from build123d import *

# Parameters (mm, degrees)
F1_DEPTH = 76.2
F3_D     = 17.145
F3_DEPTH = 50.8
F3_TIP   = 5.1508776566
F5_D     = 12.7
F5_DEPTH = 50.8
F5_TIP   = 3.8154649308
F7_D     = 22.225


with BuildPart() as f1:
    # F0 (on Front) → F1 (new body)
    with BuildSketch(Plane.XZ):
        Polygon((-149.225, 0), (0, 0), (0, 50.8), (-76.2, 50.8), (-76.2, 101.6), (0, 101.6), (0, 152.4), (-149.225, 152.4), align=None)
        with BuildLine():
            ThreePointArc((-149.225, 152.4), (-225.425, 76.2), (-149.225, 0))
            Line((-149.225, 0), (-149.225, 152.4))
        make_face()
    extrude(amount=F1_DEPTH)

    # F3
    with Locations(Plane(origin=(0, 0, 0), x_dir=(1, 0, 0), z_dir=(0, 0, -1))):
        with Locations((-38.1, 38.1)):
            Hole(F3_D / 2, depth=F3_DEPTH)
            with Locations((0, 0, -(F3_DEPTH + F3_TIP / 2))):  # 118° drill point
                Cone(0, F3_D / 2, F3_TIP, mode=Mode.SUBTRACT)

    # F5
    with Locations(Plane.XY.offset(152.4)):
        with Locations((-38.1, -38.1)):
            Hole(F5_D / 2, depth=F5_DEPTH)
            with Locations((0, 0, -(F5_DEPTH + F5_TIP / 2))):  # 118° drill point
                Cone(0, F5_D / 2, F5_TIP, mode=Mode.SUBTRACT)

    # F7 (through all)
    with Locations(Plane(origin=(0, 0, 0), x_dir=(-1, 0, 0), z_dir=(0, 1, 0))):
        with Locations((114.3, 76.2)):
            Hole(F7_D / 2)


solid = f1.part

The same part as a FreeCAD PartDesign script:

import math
import FreeCAD as App
import Part
import Sketcher
from FreeCAD import Vector
Q = App.Units.Quantity

doc = App.newDocument("Part")
body = doc.addObject("PartDesign::Body", "Body")

# Sketch on XZ plane
sketch1 = doc.addObject("Sketcher::SketchObject", "Sketch")
body.addObject(sketch1)
sketch1.AttachmentSupport = (doc.XZ_Plane, [""])
sketch1.MapMode = "FlatFace"
sketch1.addGeometry(Part.LineSegment(Vector(-149, 0, 0), Vector(0, 0, 0)), False)
sketch1.addGeometry(Part.LineSegment(Vector(0, 0, 0), Vector(0, 51, 0)), False)
sketch1.addGeometry(Part.LineSegment(Vector(0, 51, 0), Vector(-76, 51, 0)), False)
sketch1.addGeometry(Part.LineSegment(Vector(-76, 51, 0), Vector(-76, 102, 0)), False)
sketch1.addGeometry(Part.LineSegment(Vector(-76, 102, 0), Vector(0, 102, 0)), False)
sketch1.addGeometry(Part.LineSegment(Vector(0, 102, 0), Vector(0, 152, 0)), False)
sketch1.addGeometry(Part.LineSegment(Vector(0, 152, 0), Vector(-149, 152, 0)), False)
sketch1.addGeometry(Part.ArcOfCircle(Part.Circle(Vector(-149, 76, 0), Vector(0, 0, 1), 76), math.radians(90), math.radians(270)), False)
sketch1.addConstraint(Sketcher.Constraint("Coincident", 0, 2, 1, 1))
sketch1.addConstraint(Sketcher.Constraint("Coincident", 1, 2, 2, 1))
sketch1.addConstraint(Sketcher.Constraint("Coincident", 2, 2, 3, 1))
sketch1.addConstraint(Sketcher.Constraint("Coincident", 3, 2, 4, 1))
sketch1.addConstraint(Sketcher.Constraint("Coincident", 4, 2, 5, 1))
sketch1.addConstraint(Sketcher.Constraint("Coincident", 5, 2, 6, 1))
sketch1.addConstraint(Sketcher.Constraint("Tangent", 6, 2, 7, 1))
sketch1.addConstraint(Sketcher.Constraint("Tangent", 7, 2, 0, 1))
sketch1.addConstraint(Sketcher.Constraint("Horizontal", 0))
sketch1.addConstraint(Sketcher.Constraint("Vertical", 1))
sketch1.addConstraint(Sketcher.Constraint("Horizontal", 2))
sketch1.addConstraint(Sketcher.Constraint("Vertical", 3))
sketch1.addConstraint(Sketcher.Constraint("Horizontal", 4))
sketch1.addConstraint(Sketcher.Constraint("Vertical", 5))
sketch1.addConstraint(Sketcher.Constraint("Horizontal", 6))
sketch1.addConstraint(Sketcher.Constraint("Coincident", 0, 2, -1, 1))
sketch1.addConstraint(Sketcher.Constraint("PointOnObject", 4, 2, -2))
sketch1.addConstraint(Sketcher.Constraint("Equal", 1, 3))
sketch1.addConstraint(Sketcher.Constraint("Equal", 3, 5))
sketch1.addConstraint(Sketcher.Constraint("Radius", 7, Q("3 in")))
sketch1.addConstraint(Sketcher.Constraint("DistanceX", 2, 2, 2, 1, Q("3 in")))
sketch1.addConstraint(Sketcher.Constraint("DistanceX", 0, 1, 0, 2, Q("5.875 in")))
pad1 = doc.addObject("PartDesign::Pad", "Pad")
body.addObject(pad1)
pad1.Profile = sketch1
pad1.Length = Q("3 in")

# Sketch on XY plane
sketch2 = doc.addObject("Sketcher::SketchObject", "Sketch001")
body.addObject(sketch2)
sketch2.AttachmentSupport = (doc.XY_Plane, [""])
sketch2.MapMode = "FlatFace"
sketch2.addGeometry(Part.Circle(Vector(-38, -38, 0), Vector(0, 0, 1), 9), False)
sketch2.addConstraint(Sketcher.Constraint("Diameter", 0, Q("0.675 in")))
sketch2.addConstraint(Sketcher.Constraint("DistanceX", 0, 3, -1, 1, Q("1.5 in")))
sketch2.addConstraint(Sketcher.Constraint("DistanceY", 0, 3, -1, 1, Q("1.5 in")))
doc.recompute()
hole = doc.addObject("PartDesign::Hole", "Hole")
body.addObject(hole)
hole.Profile = sketch2
hole.ThreadType = "None"
hole.Diameter = Q("0.675 in")
hole.DepthType = "Dimension"
hole.Depth = Q("2 in")
hole.DrillPoint = "Angled"
hole.DrillPointAngle = 118
hole.Reversed = True

# Sketch on XY plane
sketch3 = doc.addObject("Sketcher::SketchObject", "Sketch002")
body.addObject(sketch3)
sketch3.AttachmentSupport = (doc.XY_Plane, [""])
sketch3.MapMode = "FlatFace"
sketch3.AttachmentOffset = App.Placement(Vector(0, 0, 6 * 25.4), App.Rotation())
sketch3.addGeometry(Part.Circle(Vector(-38, -38, 0), Vector(0, 0, 1), 6), False)
sketch3.addConstraint(Sketcher.Constraint("Diameter", 0, Q("0.5 in")))
sketch3.addConstraint(Sketcher.Constraint("DistanceX", 0, 3, -1, 1, Q("1.5 in")))
sketch3.addConstraint(Sketcher.Constraint("DistanceY", 0, 3, -1, 1, Q("1.5 in")))
doc.recompute()
hole2 = doc.addObject("PartDesign::Hole", "Hole001")
body.addObject(hole2)
hole2.Profile = sketch3
hole2.ThreadType = "None"
hole2.Diameter = Q("0.5 in")
hole2.DepthType = "Dimension"
hole2.Depth = Q("2 in")
hole2.DrillPoint = "Angled"
hole2.DrillPointAngle = 118

# Sketch on XZ plane
sketch4 = doc.addObject("Sketcher::SketchObject", "Sketch003")
body.addObject(sketch4)
sketch4.AttachmentSupport = (doc.XZ_Plane, [""])
sketch4.MapMode = "FlatFace"
sketch4.addGeometry(Part.Circle(Vector(-114, 76, 0), Vector(0, 0, 1), 11), False)
sketch4.addConstraint(Sketcher.Constraint("Diameter", 0, Q("0.875 in")))
sketch4.addConstraint(Sketcher.Constraint("DistanceY", -1, 1, 0, 3, Q("3 in")))
sketch4.addConstraint(Sketcher.Constraint("DistanceX", 0, 3, -1, 1, Q("4.5 in")))
doc.recompute()
hole3 = doc.addObject("PartDesign::Hole", "Hole002")
body.addObject(hole3)
hole3.Profile = sketch4
hole3.ThreadType = "None"
hole3.Diameter = Q("0.875 in")
hole3.DepthType = "ThroughAll"
hole3.Reversed = True

doc.recompute()
